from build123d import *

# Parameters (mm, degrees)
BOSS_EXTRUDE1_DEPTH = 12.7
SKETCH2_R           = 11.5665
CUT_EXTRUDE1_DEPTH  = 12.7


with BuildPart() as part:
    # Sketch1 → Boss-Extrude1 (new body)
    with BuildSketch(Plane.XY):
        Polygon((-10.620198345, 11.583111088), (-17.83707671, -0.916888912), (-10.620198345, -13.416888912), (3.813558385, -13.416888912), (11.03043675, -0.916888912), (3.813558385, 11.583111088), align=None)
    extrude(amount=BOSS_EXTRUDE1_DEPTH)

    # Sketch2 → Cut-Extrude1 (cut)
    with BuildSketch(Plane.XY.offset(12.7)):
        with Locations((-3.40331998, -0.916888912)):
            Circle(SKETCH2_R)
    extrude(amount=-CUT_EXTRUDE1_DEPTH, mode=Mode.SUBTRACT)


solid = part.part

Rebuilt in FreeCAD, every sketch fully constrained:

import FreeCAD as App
import Part
import Sketcher
Q = App.Units.Quantity

doc = App.newDocument("Part")
body = doc.addObject("PartDesign::Body", "Body")

# Sketch on XY plane
sketch1 = body.newObject("Sketcher::SketchObject", "Sketch")
sketch1.AttachmentSupport = (doc.getObject("XY_Plane"), [""])
sketch1.MapMode = "FlatFace"
sketch1.addGeometry([
    Part.LineSegment(App.Vector(-11, 12, 0), App.Vector(-18, -1, 0)),  # 0
    Part.LineSegment(App.Vector(-18, -1, 0), App.Vector(-11, -13, 0)),  # 1
    Part.LineSegment(App.Vector(-11, -13, 0), App.Vector(4, -13, 0)),  # 2
    Part.LineSegment(App.Vector(4, -13, 0), App.Vector(11, -1, 0)),  # 3
    Part.LineSegment(App.Vector(11, -1, 0), App.Vector(4, 12, 0)),  # 4
    Part.LineSegment(App.Vector(4, 12, 0), App.Vector(-11, 12, 0)),  # 5
], False)
sketch1.addConstraint([
    Sketcher.Constraint("Coincident", 0, 2, 1, 1),
    Sketcher.Constraint("Coincident", 1, 2, 2, 1),
    Sketcher.Constraint("Coincident", 2, 2, 3, 1),
    Sketcher.Constraint("Coincident", 3, 2, 4, 1),
    Sketcher.Constraint("Coincident", 4, 2, 5, 1),
    Sketcher.Constraint("Coincident", 5, 2, 0, 1),
    Sketcher.Constraint("Horizontal", 2),
    Sketcher.Constraint("Horizontal", 5),
    Sketcher.Constraint("Parallel", 0, 3),
    Sketcher.Constraint("Parallel", 1, 4),
    Sketcher.Constraint("Horizontal", 0, 2, 3, 2),
    Sketcher.Constraint("Vertical", 2, 2, 4, 2),
    Sketcher.Constraint("Vertical", 1, 2, 5, 2),
    Sketcher.Constraint("Angle", 0, Q("-120 deg")),
    Sketcher.Constraint("DistanceX", 1, 2, -1, 1, Q("10.620198 mm")),
    Sketcher.Constraint("DistanceY", 1, 2, 0, 2, Q("12.5 mm")),
    Sketcher.Constraint("DistanceX", 2, 1, 2, 2, Q("14.433757 mm")),
    Sketcher.Constraint("DistanceY", 0, 2, -1, 1, Q("0.916889 mm")),
])
pad1 = body.newObject("PartDesign::Pad", "Pad")
pad1.Profile = sketch1
pad1.Length = Q("0.5 in")

# Sketch on XY plane
sketch2 = body.newObject("Sketcher::SketchObject", "Sketch001")
sketch2.AttachmentSupport = (doc.getObject("XY_Plane"), [""])
sketch2.MapMode = "FlatFace"
sketch2.AttachmentOffset = App.Placement(App.Vector(0, 0, 0.5 * 25.4), App.Rotation())
sketch2.addGeometry(Part.Circle(App.Vector(-3, -1, 0), App.Vector(0, 0, 1), 12), False)
sketch2.addConstraint([
    Sketcher.Constraint("Diameter", 0, Q("23.133 mm")),
    Sketcher.Constraint("DistanceX", 0, 3, -1, 1, Q("3.40332 mm")),
    Sketcher.Constraint("DistanceY", 0, 3, -1, 1, Q("0.916889 mm")),
])
pocket1 = body.newObject("PartDesign::Pocket", "Pocket")
pocket1.Profile = sketch2
pocket1.Length = Q("0.5 in")

doc.recompute()
